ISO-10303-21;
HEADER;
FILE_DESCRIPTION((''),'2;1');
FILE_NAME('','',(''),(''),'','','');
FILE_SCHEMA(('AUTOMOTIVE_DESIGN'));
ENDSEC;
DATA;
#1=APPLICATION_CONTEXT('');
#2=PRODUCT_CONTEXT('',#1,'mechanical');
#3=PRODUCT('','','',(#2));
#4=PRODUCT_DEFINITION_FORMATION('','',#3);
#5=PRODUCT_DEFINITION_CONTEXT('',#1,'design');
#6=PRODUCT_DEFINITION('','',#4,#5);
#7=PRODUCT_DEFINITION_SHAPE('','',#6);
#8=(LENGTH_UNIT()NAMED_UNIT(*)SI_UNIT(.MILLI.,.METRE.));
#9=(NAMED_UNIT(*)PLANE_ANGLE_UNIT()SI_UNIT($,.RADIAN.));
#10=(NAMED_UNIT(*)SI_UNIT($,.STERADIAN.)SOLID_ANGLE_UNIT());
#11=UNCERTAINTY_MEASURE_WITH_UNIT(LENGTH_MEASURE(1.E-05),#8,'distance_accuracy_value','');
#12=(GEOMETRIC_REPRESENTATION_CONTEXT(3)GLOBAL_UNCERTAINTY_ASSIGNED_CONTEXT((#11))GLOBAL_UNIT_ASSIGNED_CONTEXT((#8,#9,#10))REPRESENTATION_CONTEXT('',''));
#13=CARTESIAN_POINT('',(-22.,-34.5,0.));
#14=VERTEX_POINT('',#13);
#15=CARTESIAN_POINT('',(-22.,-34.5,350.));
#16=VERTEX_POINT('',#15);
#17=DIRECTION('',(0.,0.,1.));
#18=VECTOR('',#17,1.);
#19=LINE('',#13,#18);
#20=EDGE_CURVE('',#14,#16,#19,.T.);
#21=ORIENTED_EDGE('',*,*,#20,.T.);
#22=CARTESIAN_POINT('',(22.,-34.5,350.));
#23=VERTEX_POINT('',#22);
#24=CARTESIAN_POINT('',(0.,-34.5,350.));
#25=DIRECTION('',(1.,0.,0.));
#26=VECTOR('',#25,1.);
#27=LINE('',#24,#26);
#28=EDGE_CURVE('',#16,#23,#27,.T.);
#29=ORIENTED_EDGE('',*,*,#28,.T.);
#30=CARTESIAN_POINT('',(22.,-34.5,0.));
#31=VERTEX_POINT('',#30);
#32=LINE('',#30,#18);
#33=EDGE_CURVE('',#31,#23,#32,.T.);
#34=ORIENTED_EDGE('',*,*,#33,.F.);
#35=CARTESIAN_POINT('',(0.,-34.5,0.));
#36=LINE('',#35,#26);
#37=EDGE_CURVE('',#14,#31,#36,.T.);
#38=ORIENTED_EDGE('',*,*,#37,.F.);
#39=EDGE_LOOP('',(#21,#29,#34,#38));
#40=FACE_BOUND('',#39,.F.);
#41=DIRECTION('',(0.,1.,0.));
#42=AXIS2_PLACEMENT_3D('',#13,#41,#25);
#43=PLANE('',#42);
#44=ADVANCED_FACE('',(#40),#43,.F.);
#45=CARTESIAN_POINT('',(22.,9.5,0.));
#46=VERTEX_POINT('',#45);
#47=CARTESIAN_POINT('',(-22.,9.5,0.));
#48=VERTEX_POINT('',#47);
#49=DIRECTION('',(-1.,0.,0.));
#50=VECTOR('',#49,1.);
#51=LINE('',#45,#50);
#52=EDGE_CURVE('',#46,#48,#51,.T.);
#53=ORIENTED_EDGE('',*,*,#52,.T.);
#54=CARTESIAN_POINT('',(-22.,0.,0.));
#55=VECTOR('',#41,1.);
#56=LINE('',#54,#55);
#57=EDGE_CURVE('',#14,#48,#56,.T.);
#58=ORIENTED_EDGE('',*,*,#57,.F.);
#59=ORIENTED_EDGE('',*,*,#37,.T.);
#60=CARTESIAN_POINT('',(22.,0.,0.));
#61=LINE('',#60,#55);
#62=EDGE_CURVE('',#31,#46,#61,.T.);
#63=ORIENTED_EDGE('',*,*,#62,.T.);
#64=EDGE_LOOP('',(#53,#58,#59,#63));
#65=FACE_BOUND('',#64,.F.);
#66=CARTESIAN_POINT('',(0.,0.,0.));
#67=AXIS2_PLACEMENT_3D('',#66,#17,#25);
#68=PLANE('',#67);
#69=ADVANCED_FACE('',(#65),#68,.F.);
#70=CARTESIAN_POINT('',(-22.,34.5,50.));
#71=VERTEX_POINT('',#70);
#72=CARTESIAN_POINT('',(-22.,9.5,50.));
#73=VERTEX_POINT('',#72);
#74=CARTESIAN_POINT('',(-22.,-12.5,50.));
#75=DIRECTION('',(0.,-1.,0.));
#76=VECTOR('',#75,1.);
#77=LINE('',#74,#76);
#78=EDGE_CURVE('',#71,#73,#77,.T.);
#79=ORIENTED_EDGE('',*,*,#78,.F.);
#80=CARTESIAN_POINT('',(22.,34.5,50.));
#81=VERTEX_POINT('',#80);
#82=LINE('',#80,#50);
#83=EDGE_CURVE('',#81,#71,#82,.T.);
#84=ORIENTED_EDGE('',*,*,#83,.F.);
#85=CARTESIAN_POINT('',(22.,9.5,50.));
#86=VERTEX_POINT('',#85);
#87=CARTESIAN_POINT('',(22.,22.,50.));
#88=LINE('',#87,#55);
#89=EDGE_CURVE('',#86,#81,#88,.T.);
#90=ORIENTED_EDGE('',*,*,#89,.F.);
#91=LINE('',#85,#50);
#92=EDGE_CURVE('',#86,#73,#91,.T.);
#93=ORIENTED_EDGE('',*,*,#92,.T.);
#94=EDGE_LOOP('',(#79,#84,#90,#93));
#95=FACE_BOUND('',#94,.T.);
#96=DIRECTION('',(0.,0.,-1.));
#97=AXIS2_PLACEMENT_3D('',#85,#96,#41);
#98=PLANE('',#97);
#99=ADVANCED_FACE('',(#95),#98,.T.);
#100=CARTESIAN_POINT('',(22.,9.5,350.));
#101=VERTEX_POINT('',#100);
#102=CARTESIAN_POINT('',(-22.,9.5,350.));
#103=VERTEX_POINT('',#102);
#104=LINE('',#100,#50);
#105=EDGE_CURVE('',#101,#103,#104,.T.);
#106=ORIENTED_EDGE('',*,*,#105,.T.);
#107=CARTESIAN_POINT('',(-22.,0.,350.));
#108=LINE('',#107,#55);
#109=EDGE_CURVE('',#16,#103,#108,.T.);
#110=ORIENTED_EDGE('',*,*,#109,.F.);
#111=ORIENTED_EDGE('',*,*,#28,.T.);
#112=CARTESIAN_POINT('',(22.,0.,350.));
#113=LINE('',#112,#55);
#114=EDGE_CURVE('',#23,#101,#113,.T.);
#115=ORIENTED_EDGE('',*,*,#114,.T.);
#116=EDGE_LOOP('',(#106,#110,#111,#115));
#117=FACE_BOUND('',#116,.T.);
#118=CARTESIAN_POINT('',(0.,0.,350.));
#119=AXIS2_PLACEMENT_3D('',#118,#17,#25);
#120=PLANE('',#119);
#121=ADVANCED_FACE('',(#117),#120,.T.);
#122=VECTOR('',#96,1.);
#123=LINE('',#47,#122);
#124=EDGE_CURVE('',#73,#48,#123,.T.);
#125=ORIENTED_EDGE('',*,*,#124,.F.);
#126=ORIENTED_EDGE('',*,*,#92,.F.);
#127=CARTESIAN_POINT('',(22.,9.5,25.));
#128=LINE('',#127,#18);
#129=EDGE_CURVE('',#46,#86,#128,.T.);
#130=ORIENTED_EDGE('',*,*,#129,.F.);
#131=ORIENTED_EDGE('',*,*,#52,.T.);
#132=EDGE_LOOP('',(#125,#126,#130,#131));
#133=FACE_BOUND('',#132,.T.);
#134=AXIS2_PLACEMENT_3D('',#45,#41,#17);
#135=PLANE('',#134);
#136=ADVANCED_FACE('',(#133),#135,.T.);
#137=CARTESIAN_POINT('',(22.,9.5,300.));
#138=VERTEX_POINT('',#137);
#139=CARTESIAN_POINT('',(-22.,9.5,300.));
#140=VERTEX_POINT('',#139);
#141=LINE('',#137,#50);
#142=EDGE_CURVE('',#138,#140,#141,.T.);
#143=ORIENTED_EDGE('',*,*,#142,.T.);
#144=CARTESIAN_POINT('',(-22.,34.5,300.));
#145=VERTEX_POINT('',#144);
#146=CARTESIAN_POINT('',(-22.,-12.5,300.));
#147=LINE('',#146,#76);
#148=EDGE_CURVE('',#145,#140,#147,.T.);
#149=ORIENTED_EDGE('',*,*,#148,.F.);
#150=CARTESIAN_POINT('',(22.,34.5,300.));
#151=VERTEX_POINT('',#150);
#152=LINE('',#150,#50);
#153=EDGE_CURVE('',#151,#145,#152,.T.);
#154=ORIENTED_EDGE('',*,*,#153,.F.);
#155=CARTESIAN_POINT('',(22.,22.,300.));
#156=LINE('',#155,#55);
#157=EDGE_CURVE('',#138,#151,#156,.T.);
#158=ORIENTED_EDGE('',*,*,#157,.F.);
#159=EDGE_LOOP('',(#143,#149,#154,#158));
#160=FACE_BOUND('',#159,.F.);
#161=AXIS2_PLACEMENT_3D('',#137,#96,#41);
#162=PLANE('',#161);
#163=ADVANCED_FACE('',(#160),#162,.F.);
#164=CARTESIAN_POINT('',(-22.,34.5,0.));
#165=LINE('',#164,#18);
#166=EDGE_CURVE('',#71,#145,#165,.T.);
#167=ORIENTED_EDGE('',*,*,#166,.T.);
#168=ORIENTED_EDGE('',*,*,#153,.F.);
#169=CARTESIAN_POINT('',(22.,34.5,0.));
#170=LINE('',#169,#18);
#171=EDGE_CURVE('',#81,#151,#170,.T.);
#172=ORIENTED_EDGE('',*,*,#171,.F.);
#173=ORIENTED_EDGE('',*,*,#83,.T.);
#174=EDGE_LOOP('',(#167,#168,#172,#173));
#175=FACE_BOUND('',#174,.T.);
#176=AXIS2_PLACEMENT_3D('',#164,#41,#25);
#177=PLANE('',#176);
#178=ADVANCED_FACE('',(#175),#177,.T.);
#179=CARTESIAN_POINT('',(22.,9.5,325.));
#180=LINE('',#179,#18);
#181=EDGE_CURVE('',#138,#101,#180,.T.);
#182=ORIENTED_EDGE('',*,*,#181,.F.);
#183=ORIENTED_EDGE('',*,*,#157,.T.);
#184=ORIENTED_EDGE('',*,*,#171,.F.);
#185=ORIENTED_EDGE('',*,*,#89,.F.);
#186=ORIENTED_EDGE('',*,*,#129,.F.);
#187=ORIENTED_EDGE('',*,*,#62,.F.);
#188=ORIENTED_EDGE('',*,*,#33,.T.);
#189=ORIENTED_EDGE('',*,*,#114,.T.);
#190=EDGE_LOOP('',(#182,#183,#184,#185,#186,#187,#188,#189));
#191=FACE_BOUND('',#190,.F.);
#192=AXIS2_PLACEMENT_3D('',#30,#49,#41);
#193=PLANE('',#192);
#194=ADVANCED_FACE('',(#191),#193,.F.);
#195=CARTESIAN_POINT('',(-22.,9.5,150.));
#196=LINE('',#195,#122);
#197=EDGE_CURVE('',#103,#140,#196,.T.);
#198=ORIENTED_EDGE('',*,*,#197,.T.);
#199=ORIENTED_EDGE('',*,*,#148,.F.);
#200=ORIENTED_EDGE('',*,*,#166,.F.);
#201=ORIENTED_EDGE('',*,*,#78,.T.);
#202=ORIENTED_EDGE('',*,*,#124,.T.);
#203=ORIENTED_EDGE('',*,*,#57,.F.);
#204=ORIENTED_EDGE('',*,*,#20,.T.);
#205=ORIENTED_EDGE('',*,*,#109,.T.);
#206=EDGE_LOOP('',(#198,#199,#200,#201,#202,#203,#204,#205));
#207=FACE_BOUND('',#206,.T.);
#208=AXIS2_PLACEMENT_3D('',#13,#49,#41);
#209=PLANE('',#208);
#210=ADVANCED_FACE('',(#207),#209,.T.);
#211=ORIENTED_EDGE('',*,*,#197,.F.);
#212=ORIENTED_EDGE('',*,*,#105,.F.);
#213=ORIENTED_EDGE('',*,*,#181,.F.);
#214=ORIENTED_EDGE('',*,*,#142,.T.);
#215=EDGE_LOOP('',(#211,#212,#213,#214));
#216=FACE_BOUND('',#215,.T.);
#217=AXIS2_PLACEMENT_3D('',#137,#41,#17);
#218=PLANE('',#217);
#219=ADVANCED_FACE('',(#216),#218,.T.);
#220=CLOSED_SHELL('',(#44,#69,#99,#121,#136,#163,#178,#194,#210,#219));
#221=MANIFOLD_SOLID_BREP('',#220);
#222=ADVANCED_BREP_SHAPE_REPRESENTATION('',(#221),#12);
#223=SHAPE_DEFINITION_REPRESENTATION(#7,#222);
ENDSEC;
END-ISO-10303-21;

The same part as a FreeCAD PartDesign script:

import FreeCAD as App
import Part
import Sketcher

V = App.Vector

doc = App.newDocument("Part")
body = doc.addObject("PartDesign::Body", "Body")

# Sketch on XY plane
sketch1 = body.newObject("Sketcher::SketchObject", "Sketch")
sketch1.AttachmentSupport = (doc.getObject("XY_Plane"), [""])
sketch1.MapMode = "FlatFace"
sketch1.addGeometry([
    Part.LineSegment(V(-22, 34, 0), V(-22, -34, 0)),
    Part.LineSegment(V(-22, -34, 0), V(22, -34, 0)),
    Part.LineSegment(V(22, -34, 0), V(22, 34, 0)),
    Part.LineSegment(V(22, 34, 0), V(-22, 34, 0)),
], False)
sketch1.addConstraint([
    Sketcher.Constraint("Coincident", 0, 2, 1, 1),
    Sketcher.Constraint("Coincident", 1, 2, 2, 1),
    Sketcher.Constraint("Coincident", 2, 2, 3, 1),
    Sketcher.Constraint("Coincident", 3, 2, 0, 1),
    Sketcher.Constraint("Vertical", 0),
    Sketcher.Constraint("Horizontal", 1),
    Sketcher.Constraint("Vertical", 2),
    Sketcher.Constraint("Horizontal", 3),
    Sketcher.Constraint("Symmetric", 0, 2, 2, 2, -1, 1),
    Sketcher.Constraint("DistanceX", 1, 1, 1, 2, 44.0),
    Sketcher.Constraint("DistanceY", 0, 2, 0, 1, 69.0),
])
pad1 = body.newObject("PartDesign::Pad", "Pad")
pad1.Profile = sketch1
pad1.Length = 350

# Sketch on YZ plane
sketch2 = body.newObject("Sketcher::SketchObject", "Sketch001")
sketch2.AttachmentSupport = (doc.getObject("YZ_Plane"), [""])
sketch2.MapMode = "FlatFace"
sketch2.AttachmentOffset = App.Placement(V(0, 0, 22), App.Rotation())
sketch2.addGeometry([
    Part.LineSegment(V(10, 50, 0), V(10, 0, 0)),  # 0
    Part.LineSegment(V(10, 0, 0), V(34, 0, 0)),  # 1
    Part.LineSegment(V(34, 0, 0), V(34, 50, 0)),  # 2
    Part.LineSegment(V(34, 50, 0), V(10, 50, 0)),  # 3
    Part.LineSegment(V(10, 350, 0), V(10, 300, 0)),  # 4
    Part.LineSegment(V(10, 300, 0), V(34, 300, 0)),  # 5
    Part.LineSegment(V(34, 300, 0), V(34, 350, 0)),  # 6
    Part.LineSegment(V(34, 350, 0), V(10, 350, 0)),  # 7
], False)
sketch2.addConstraint([
    Sketcher.Constraint("Coincident", 0, 2, 1, 1),
    Sketcher.Constraint("Coincident", 1, 2, 2, 1),
    Sketcher.Constraint("Coincident", 2, 2, 3, 1),
    Sketcher.Constraint("Coincident", 3, 2, 0, 1),
    Sketcher.Constraint("Coincident", 4, 2, 5, 1),
    Sketcher.Constraint("Coincident", 5, 2, 6, 1),
    Sketcher.Constraint("Coincident", 6, 2, 7, 1),
    Sketcher.Constraint("Coincident", 7, 2, 4, 1),
    Sketcher.Constraint("Vertical", 0),
    Sketcher.Constraint("Horizontal", 1),
    Sketcher.Constraint("Vertical", 2),
    Sketcher.Constraint("Horizontal", 3),
    Sketcher.Constraint("Vertical", 4),
    Sketcher.Constraint("Horizontal", 5),
    Sketcher.Constraint("Vertical", 6),
    Sketcher.Constraint("Horizontal", 7),
    Sketcher.Constraint("PointOnObject", 0, 2, -1),
    Sketcher.Constraint("Vertical", 3, 2, 4, 2),
    Sketcher.Constraint("Vertical", 2, 2, 5, 2),
    Sketcher.Constraint("Equal", 2, 4),
    Sketcher.Constraint("DistanceX", 1, 1, 1, 2, 25.0),
    Sketcher.Constraint("DistanceY", 0, 2, 0, 1, 50.0),
    Sketcher.Constraint("DistanceY", -1, 1, 4, 2, 300.0),
    Sketcher.Constraint("DistanceX", -1, 1, 0, 2, 9.5),
])
pocket1 = body.newObject("PartDesign::Pocket", "Pocket")
pocket1.Profile = sketch2
pocket1.Type = "ThroughAll"

doc.recompute()
